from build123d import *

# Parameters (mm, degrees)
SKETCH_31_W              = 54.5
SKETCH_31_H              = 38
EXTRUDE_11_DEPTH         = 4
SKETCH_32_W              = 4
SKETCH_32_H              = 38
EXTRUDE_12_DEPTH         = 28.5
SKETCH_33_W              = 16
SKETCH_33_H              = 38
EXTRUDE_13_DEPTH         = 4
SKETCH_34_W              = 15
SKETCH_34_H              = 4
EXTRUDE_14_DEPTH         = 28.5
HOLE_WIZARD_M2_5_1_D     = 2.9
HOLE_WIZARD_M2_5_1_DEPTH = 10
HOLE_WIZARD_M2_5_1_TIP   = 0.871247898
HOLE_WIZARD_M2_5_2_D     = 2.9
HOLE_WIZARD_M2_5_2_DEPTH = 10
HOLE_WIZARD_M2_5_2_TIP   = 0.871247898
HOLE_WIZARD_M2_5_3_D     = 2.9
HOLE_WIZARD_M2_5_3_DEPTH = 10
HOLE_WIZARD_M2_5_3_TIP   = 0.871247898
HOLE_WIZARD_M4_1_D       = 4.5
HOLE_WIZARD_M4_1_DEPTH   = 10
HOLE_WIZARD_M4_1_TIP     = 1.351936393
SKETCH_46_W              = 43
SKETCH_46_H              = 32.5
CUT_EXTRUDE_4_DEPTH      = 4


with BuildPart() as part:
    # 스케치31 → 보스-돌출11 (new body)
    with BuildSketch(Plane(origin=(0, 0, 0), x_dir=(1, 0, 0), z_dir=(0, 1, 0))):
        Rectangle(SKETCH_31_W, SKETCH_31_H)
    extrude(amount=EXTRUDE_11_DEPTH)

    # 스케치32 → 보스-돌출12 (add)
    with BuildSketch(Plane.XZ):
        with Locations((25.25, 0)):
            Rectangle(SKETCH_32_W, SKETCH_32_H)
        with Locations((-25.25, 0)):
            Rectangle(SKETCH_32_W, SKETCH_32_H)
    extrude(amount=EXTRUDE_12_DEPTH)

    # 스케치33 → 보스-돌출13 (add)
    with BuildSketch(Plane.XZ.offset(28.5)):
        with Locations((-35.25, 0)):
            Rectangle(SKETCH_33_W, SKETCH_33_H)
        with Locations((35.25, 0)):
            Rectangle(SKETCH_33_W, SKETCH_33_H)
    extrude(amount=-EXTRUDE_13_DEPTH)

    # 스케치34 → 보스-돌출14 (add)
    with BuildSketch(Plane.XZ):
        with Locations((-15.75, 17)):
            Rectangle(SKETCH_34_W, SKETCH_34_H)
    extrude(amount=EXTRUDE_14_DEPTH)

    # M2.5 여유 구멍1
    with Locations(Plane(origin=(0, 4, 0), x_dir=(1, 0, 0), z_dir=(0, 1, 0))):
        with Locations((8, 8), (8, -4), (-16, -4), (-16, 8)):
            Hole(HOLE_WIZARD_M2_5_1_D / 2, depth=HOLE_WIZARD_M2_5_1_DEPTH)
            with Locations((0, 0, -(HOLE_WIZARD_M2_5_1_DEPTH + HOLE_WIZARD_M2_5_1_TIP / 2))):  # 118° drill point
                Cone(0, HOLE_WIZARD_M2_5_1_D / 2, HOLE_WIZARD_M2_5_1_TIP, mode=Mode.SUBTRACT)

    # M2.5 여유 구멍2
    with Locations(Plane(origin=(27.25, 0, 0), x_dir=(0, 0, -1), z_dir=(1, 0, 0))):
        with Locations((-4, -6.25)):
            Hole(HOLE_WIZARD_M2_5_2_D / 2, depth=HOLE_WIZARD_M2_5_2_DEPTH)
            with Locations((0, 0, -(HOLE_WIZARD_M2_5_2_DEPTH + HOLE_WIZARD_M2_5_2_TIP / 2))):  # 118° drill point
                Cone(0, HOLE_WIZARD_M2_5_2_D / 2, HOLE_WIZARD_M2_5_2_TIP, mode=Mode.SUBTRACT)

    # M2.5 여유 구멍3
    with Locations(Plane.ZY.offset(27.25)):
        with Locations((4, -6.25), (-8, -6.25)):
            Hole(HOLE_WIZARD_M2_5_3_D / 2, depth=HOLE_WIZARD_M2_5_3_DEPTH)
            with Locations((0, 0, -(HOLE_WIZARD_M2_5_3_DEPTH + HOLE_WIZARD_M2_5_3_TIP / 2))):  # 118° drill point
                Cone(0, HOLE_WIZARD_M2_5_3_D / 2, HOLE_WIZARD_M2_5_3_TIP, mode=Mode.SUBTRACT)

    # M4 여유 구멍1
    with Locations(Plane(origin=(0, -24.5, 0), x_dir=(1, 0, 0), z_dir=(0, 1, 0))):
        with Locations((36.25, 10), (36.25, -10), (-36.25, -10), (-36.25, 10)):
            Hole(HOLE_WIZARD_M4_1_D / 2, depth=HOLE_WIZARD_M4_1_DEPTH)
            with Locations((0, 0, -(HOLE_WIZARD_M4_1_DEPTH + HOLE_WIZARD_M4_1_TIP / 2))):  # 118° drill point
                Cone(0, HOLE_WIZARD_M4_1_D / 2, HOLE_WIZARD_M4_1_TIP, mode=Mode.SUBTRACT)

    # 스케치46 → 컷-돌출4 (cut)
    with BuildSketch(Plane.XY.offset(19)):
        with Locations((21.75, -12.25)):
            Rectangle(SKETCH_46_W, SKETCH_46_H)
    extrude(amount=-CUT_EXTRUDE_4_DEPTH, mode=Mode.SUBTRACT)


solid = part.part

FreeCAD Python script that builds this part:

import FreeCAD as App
import Part
import Sketcher
from FreeCAD import Vector


def add_polygon(sketch, points):
    """Adds a closed chain of lines whose ends are joined by coincident constraints."""
    first, n = sketch.GeometryCount, len(points)
    for a, b in zip(points, points[1:] + points[:1]):
        sketch.addGeometry(Part.LineSegment(App.Vector(*a, 0), App.Vector(*b, 0)), False)
    for i in range(n):
        sketch.addConstraint(Sketcher.Constraint("Coincident", first + i, 2, first + (i + 1) % n, 1))

doc = App.newDocument("Part")
params = doc.addObject("Spreadsheet::Sheet", "Params")
for row, (alias, value) in enumerate([
    ("sketch1_height", "38 mm"),
    ("sketch1_width", "54.5 mm"),
    ("pad1_length", "4 mm"),
    ("sketch2_width", "4 mm"),
    ("sketch2_height", "38 mm"),
    ("pad2_length", "28.5 mm"),
    ("sketch3_width", "16 mm"),
    ("sketch3_height", "38 mm"),
    ("pad3_length", "4 mm"),
    ("sketch4_width", "15 mm"),
    ("sketch4_height", "4 mm"),
    ("pad4_length", "28.5 mm"),
    ("sketch5_diameter", "2.9 mm"),
    ("hole_diameter", "2.9 mm"),
    ("hole_depth", "10 mm"),
    ("sketch6_diameter", "2.9 mm"),
    ("hole2_diameter", "2.9 mm"),
    ("hole2_depth", "10 mm"),
    ("sketch7_diameter", "2.9 mm"),
    ("hole3_diameter", "2.9 mm"),
    ("hole3_depth", "10 mm"),
    ("sketch8_diameter", "4.5 mm"),
    ("hole4_diameter", "4.5 mm"),
    ("hole4_depth", "10 mm"),
    ("sketch9_width", "43 mm"),
    ("sketch9_height", "32.5 mm"),
    ("pocket1_length", "4 mm"),
], start=1):
    params.set(f"A{row}", alias)
    params.set(f"B{row}", "=" + value)
    params.setAlias(f"B{row}", alias)

body = doc.addObject("PartDesign::Body", "Body")

# Sketch on XZ plane
sketch1 = body.newObject("Sketcher::SketchObject", "Sketch")
sketch1.AttachmentSupport = (doc.getObject("XZ_Plane"), [""])
sketch1.MapMode = "FlatFace"
add_polygon(sketch1, [(-27, -19), (-27, 19), (27, 19), (27, -19)])  # lines 0-3
sketch1.addConstraint([
    Sketcher.Constraint("Vertical", 0),
    Sketcher.Constraint("Horizontal", 1),
    Sketcher.Constraint("Vertical", 2),
    Sketcher.Constraint("Horizontal", 3),
    Sketcher.Constraint("Symmetric", 0, 2, 2, 2, -1, 1),
    Sketcher.Constraint("DistanceY", 0, 1, 0, 2, 38.0),
    Sketcher.Constraint("DistanceX", 1, 1, 1, 2, 54.5),
])
sketch1.setExpression("Constraints[9]", "Params.sketch1_height")
sketch1.setExpression("Constraints[10]", "Params.sketch1_width")
pad1 = body.newObject("PartDesign::Pad", "Pad")
pad1.Profile = sketch1
pad1.setExpression("Length", "Params.pad1_length")
pad1.Reversed = True

# Sketch on XZ plane
sketch2 = body.newObject("Sketcher::SketchObject", "Sketch001")
sketch2.AttachmentSupport = (doc.getObject("XZ_Plane"), [""])
sketch2.MapMode = "FlatFace"
add_polygon(sketch2, [(23.2, 19), (23.2, -19), (27.2, -19), (27.2, 19)])  # lines 0-3
add_polygon(sketch2, [(-27.2, 19), (-27.2, -19), (-23.2, -19), (-23.2, 19)])  # lines 4-7
sketch2.addConstraint([
    Sketcher.Constraint("Vertical", 0),
    Sketcher.Constraint("Horizontal", 1),
    Sketcher.Constraint("Vertical", 2),
    Sketcher.Constraint("Horizontal", 3),
    Sketcher.Constraint("Vertical", 4),
    Sketcher.Constraint("Horizontal", 5),
    Sketcher.Constraint("Vertical", 6),
    Sketcher.Constraint("Horizontal", 7),
    Sketcher.Constraint("Symmetric", 2, 2, 4, 2, -1, 1),
    Sketcher.Constraint("Symmetric", 0, 2, 6, 2, -1, 1),
    Sketcher.Constraint("Horizontal", 1, 2, 4, 2),
    Sketcher.Constraint("DistanceX", 1, 1, 1, 2, 4.0),
    Sketcher.Constraint("DistanceY", 0, 2, 0, 1, 38.0),
    Sketcher.Constraint("DistanceX", 4, 2, 0, 2, 50.5),
])
sketch2.setExpression("Constraints[19]", "Params.sketch2_width")
sketch2.setExpression("Constraints[20]", "Params.sketch2_height")
pad2 = body.newObject("PartDesign::Pad", "Pad001")
pad2.Profile = sketch2
pad2.setExpression("Length", "Params.pad2_length")

# Sketch on XZ plane
sketch3 = body.newObject("Sketcher::SketchObject", "Sketch002")
sketch3.AttachmentSupport = (doc.getObject("XZ_Plane"), [""])
sketch3.MapMode = "FlatFace"
sketch3.AttachmentOffset = App.Placement(Vector(0, 0, 28.5), App.Rotation())
add_polygon(sketch3, [(-43, 19), (-43, -19), (-27, -19), (-27, 19)])  # lines 0-3
add_polygon(sketch3, [(27, 19), (27, -19), (43, -19), (43, 19)])  # lines 4-7
sketch3.addConstraint([
    Sketcher.Constraint("Vertical", 0),
    Sketcher.Constraint("Horizontal", 1),
    Sketcher.Constraint("Vertical", 2),
    Sketcher.Constraint("Horizontal", 3),
    Sketcher.Constraint("Vertical", 4),
    Sketcher.Constraint("Horizontal", 5),
    Sketcher.Constraint("Vertical", 6),
    Sketcher.Constraint("Horizontal", 7),
    Sketcher.Constraint("Symmetric", 2, 2, 4, 2, -1, 1),
    Sketcher.Constraint("Symmetric", 0, 2, 6, 2, -1, 1),
    Sketcher.Constraint("Horizontal", 1, 2, 4, 2),
    Sketcher.Constraint("DistanceX", 1, 1, 1, 2, 16.0),
    Sketcher.Constraint("DistanceY", 0, 2, 0, 1, 38.0),
    Sketcher.Constraint("DistanceX", 1, 2, 4, 2, 54.5),
])
sketch3.setExpression("Constraints[19]", "Params.sketch3_width")
sketch3.setExpression("Constraints[20]", "Params.sketch3_height")
pad3 = body.newObject("PartDesign::Pad", "Pad002")
pad3.Profile = sketch3
pad3.setExpression("Length", "Params.pad3_length")
pad3.Reversed = True

# Sketch on XZ plane
sketch4 = body.newObject("Sketcher::SketchObject", "Sketch003")
sketch4.AttachmentSupport = (doc.getObject("XZ_Plane"), [""])
sketch4.MapMode = "FlatFace"
add_polygon(sketch4, [(-23.2, 19), (-23.2, 15), (-8.2, 15), (-8.2, 19)])  # lines 0-3
sketch4.addConstraint([
    Sketcher.Constraint("Vertical", 0),
    Sketcher.Constraint("Horizontal", 1),
    Sketcher.Constraint("Vertical", 2),
    Sketcher.Constraint("Horizontal", 3),
    Sketcher.Constraint("DistanceX", 1, 1, 1, 2, 15.0),
    Sketcher.Constraint("DistanceY", 0, 2, 0, 1, 4.0),
    Sketcher.Constraint("DistanceY", -1, 1, 0, 2, 15.0),
    Sketcher.Constraint("DistanceX", 0, 2, -1, 1, 23.25),
])
sketch4.setExpression("Constraints[8]", "Params.sketch4_width")
sketch4.setExpression("Constraints[9]", "Params.sketch4_height")
pad4 = body.newObject("PartDesign::Pad", "Pad003")
pad4.Profile = sketch4
pad4.setExpression("Length", "Params.pad4_length")

# Sketch on XZ plane
sketch5 = body.newObject("Sketcher::SketchObject", "Sketch004")
sketch5.AttachmentSupport = (doc.getObject("XZ_Plane"), [""])
sketch5.MapMode = "FlatFace"
sketch5.AttachmentOffset = App.Placement(Vector(0, 0, -4), App.Rotation())
sketch5.addGeometry([
    Part.Circle(Vector(8, -8, 0), Vector(0, 0, 1), 1.4),
    Part.Circle(Vector(8, 4, 0), Vector(0, 0, 1), 1.4),
    Part.Circle(Vector(-16, 4, 0), Vector(0, 0, 1), 1.4),
    Part.Circle(Vector(-16, -8, 0), Vector(0, 0, 1), 1.4),
], False)
sketch5.addConstraint([
    Sketcher.Constraint("Equal", 0, 1),
    Sketcher.Constraint("Equal", 1, 2),
    Sketcher.Constraint("Equal", 2, 3),
    Sketcher.Constraint("Horizontal", 1, 3, 2, 3),
    Sketcher.Constraint("Horizontal", 0, 3, 3, 3),
    Sketcher.Constraint("Vertical", 0, 3, 1, 3),
    Sketcher.Constraint("Vertical", 2, 3, 3, 3),
    Sketcher.Constraint("Diameter", 0, 2.9),
    Sketcher.Constraint("DistanceX", -1, 1, 0, 3, 8.0),
    Sketcher.Constraint("DistanceY", 0, 3, -1, 1, 8.0),
    Sketcher.Constraint("DistanceY", -1, 1, 1, 3, 4.0),
    Sketcher.Constraint("DistanceX", 2, 3, -1, 1, 16.0),
])
sketch5.setExpression("Constraints[7]", "Params.sketch5_diameter")
doc.recompute()
hole = body.newObject("PartDesign::Hole", "Hole")
hole.Profile = sketch5
hole.ThreadType = "None"
hole.setExpression("Diameter", "Params.hole_diameter")
hole.DepthType = "Dimension"
hole.setExpression("Depth", "Params.hole_depth")
hole.DrillPoint = "Angled"
hole.DrillPointAngle = 118
hole.Reversed = True

# Sketch on YZ plane
sketch6 = body.newObject("Sketcher::SketchObject", "Sketch005")
sketch6.AttachmentSupport = (doc.getObject("YZ_Plane"), [""])
sketch6.MapMode = "FlatFace"
sketch6.AttachmentOffset = App.Placement(Vector(0, 0, 27.25), App.Rotation())
sketch6.addGeometry(Part.Circle(Vector(-6.2, 4, 0), Vector(0, 0, 1), 1.4), False)
sketch6.addConstraint([
    Sketcher.Constraint("Diameter", 0, 2.9),
    Sketcher.Constraint("DistanceY", -1, 1, 0, 3, 4.0),
    Sketcher.Constraint("DistanceX", 0, 3, -1, 1, 6.25),
])
sketch6.setExpression("Constraints[0]", "Params.sketch6_diameter")
doc.recompute()
hole2 = body.newObject("PartDesign::Hole", "Hole001")
hole2.Profile = sketch6
hole2.ThreadType = "None"
hole2.setExpression("Diameter", "Params.hole2_diameter")
hole2.DepthType = "Dimension"
hole2.setExpression("Depth", "Params.hole2_depth")
hole2.DrillPoint = "Angled"
hole2.DrillPointAngle = 118

# Sketch on YZ plane
sketch7 = body.newObject("Sketcher::SketchObject", "Sketch006")
sketch7.AttachmentSupport = (doc.getObject("YZ_Plane"), [""])
sketch7.MapMode = "FlatFace"
sketch7.AttachmentOffset = App.Placement(Vector(0, 0, -27.25), App.Rotation())
sketch7.addGeometry([
    Part.Circle(Vector(-6.2, 4, 0), Vector(0, 0, 1), 1.4),
    Part.Circle(Vector(-6.2, -8, 0), Vector(0, 0, 1), 1.4),
], False)
sketch7.addConstraint([
    Sketcher.Constraint("Equal", 0, 1),
    Sketcher.Constraint("Vertical", 0, 3, 1, 3),
    Sketcher.Constraint("Diameter", 0, 2.9),
    Sketcher.Constraint("DistanceY", -1, 1, 0, 3, 4.0),
    Sketcher.Constraint("DistanceY", 1, 3, -1, 1, 8.0),
    Sketcher.Constraint("DistanceX", 0, 3, -1, 1, 6.25),
])
sketch7.setExpression("Constraints[2]", "Params.sketch7_diameter")
doc.recompute()
hole3 = body.newObject("PartDesign::Hole", "Hole002")
hole3.Profile = sketch7
hole3.ThreadType = "None"
hole3.setExpression("Diameter", "Params.hole3_diameter")
hole3.DepthType = "Dimension"
hole3.setExpression("Depth", "Params.hole3_depth")
hole3.DrillPoint = "Angled"
hole3.DrillPointAngle = 118
hole3.Reversed = True

# Sketch on XZ plane
sketch8 = body.newObject("Sketcher::SketchObject", "Sketch007")
sketch8.AttachmentSupport = (doc.getObject("XZ_Plane"), [""])
sketch8.MapMode = "FlatFace"
sketch8.AttachmentOffset = App.Placement(Vector(0, 0, 24.5), App.Rotation())
sketch8.addGeometry([
    Part.Circle(Vector(36.2, -10, 0), Vector(0, 0, 1), 2.2),
    Part.Circle(Vector(36.2, 10, 0), Vector(0, 0, 1), 2.2),
    Part.Circle(Vector(-36.2, 10, 0), Vector(0, 0, 1), 2.2),
    Part.Circle(Vector(-36.2, -10, 0), Vector(0, 0, 1), 2.2),
], False)
sketch8.addConstraint([
    Sketcher.Constraint("Equal", 0, 1),
    Sketcher.Constraint("Equal", 1, 2),
    Sketcher.Constraint("Equal", 2, 3),
    Sketcher.Constraint("Symmetric", 0, 3, 2, 3, -1, 1),
    Sketcher.Constraint("Symmetric", 1, 3, 3, 3, -1, 1),
    Sketcher.Constraint("Symmetric", 1, 3, 2, 3, -2),
    Sketcher.Constraint("Diameter", 0, 4.5),
    Sketcher.Constraint("DistanceY", 0, 3, -1, 1, 10.0),
    Sketcher.Constraint("DistanceX", 2, 3, 1, 3, 72.5),
])
sketch8.setExpression("Constraints[6]", "Params.sketch8_diameter")
doc.recompute()
hole4 = body.newObject("PartDesign::Hole", "Hole003")
hole4.Profile = sketch8
hole4.ThreadType = "None"
hole4.setExpression("Diameter", "Params.hole4_diameter")
hole4.DepthType = "Dimension"
hole4.setExpression("Depth", "Params.hole4_depth")
hole4.DrillPoint = "Angled"
hole4.DrillPointAngle = 118
hole4.Reversed = True

# Sketch on XY plane
sketch9 = body.newObject("Sketcher::SketchObject", "Sketch008")
sketch9.AttachmentSupport = (doc.getObject("XY_Plane"), [""])
sketch9.MapMode = "FlatFace"
sketch9.AttachmentOffset = App.Placement(Vector(0, 0, 19), App.Rotation())
add_polygon(sketch9, [(0, 4), (0, -28), (43, -28), (43, 4)])  # lines 0-3
sketch9.addConstraint([
    Sketcher.Constraint("Vertical", 0),
    Sketcher.Constraint("Horizontal", 1),
    Sketcher.Constraint("Vertical", 2),
    Sketcher.Constraint("Horizontal", 3),
    Sketcher.Constraint("DistanceX", 1, 1, 1, 2, 43.0),
    Sketcher.Constraint("DistanceY", 0, 2, 0, 1, 32.5),
    Sketcher.Constraint("DistanceY", -1, 1, 2, 2, 4.0),
    Sketcher.Constraint("DistanceX", -1, 1, 0, 2, 0.25),
])
sketch9.setExpression("Constraints[8]", "Params.sketch9_width")
sketch9.setExpression("Constraints[9]", "Params.sketch9_height")
pocket1 = body.newObject("PartDesign::Pocket", "Pocket")
pocket1.Profile = sketch9
pocket1.setExpression("Length", "Params.pocket1_length")

doc.recompute()
